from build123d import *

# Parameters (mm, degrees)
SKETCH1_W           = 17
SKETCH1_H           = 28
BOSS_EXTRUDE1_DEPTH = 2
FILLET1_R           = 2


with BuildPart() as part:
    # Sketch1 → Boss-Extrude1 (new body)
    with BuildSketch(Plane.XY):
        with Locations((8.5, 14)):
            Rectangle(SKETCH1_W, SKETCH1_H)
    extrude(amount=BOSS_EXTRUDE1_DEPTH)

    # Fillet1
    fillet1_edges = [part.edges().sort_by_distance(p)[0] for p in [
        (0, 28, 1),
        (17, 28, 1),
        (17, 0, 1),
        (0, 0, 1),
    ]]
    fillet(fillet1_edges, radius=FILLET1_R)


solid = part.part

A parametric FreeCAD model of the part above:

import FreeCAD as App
import Part
import Sketcher

V = App.Vector
Q = App.Units.Quantity


def edges_at(feature, points):
    """Names of the edges that pass closest to the given points."""
    edges = feature.Shape.Edges
    near = lambda p: min(range(len(edges)), key=lambda i: edges[i].distToShape(Part.Vertex(*p))[0])
    return sorted({f"Edge{near(p) + 1}" for p in points})

doc = App.newDocument("Part")
body = doc.addObject("PartDesign::Body", "Body")

# Sketch on XY plane
sketch1 = body.newObject("Sketcher::SketchObject", "Sketch")
sketch1.AttachmentSupport = (doc.getObject("XY_Plane"), [""])
sketch1.MapMode = "FlatFace"
sketch1.addGeometry(Part.LineSegment(V(0, 28, 0), V(0, 0, 0)), False)
sketch1.addGeometry(Part.LineSegment(V(0, 0, 0), V(17, 0, 0)), False)
sketch1.addGeometry(Part.LineSegment(V(17, 0, 0), V(17, 28, 0)), False)
sketch1.addGeometry(Part.LineSegment(V(17, 28, 0), V(0, 28, 0)), False)
sketch1.addConstraint(Sketcher.Constraint("Coincident", 0, 2, 1, 1))
sketch1.addConstraint(Sketcher.Constraint("Coincident", 1, 2, 2, 1))
sketch1.addConstraint(Sketcher.Constraint("Coincident", 2, 2, 3, 1))
sketch1.addConstraint(Sketcher.Constraint("Coincident", 3, 2, 0, 1))
sketch1.addConstraint(Sketcher.Constraint("Vertical", 0))
sketch1.addConstraint(Sketcher.Constraint("Horizontal", 1))
sketch1.addConstraint(Sketcher.Constraint("Vertical", 2))
sketch1.addConstraint(Sketcher.Constraint("Horizontal", 3))
sketch1.addConstraint(Sketcher.Constraint("Coincident", 0, 2, -1, 1))
sketch1.addConstraint(Sketcher.Constraint("DistanceX", 1, 1, 1, 2, Q("17 mm")))
sketch1.addConstraint(Sketcher.Constraint("DistanceY", 0, 2, 0, 1, Q("28 mm")))
pad1 = body.newObject("PartDesign::Pad", "Pad")
pad1.Profile = sketch1
pad1.Length = 2
doc.recompute()

fillet = body.newObject("PartDesign::Fillet", "Fillet")
fillet.Base = (pad1, edges_at(pad1, [
    (0, 28, 1),
    (17, 28, 1),
    (17, 0, 1),
    (0, 0, 1),
]))
fillet.Radius = 2

doc.recompute()
